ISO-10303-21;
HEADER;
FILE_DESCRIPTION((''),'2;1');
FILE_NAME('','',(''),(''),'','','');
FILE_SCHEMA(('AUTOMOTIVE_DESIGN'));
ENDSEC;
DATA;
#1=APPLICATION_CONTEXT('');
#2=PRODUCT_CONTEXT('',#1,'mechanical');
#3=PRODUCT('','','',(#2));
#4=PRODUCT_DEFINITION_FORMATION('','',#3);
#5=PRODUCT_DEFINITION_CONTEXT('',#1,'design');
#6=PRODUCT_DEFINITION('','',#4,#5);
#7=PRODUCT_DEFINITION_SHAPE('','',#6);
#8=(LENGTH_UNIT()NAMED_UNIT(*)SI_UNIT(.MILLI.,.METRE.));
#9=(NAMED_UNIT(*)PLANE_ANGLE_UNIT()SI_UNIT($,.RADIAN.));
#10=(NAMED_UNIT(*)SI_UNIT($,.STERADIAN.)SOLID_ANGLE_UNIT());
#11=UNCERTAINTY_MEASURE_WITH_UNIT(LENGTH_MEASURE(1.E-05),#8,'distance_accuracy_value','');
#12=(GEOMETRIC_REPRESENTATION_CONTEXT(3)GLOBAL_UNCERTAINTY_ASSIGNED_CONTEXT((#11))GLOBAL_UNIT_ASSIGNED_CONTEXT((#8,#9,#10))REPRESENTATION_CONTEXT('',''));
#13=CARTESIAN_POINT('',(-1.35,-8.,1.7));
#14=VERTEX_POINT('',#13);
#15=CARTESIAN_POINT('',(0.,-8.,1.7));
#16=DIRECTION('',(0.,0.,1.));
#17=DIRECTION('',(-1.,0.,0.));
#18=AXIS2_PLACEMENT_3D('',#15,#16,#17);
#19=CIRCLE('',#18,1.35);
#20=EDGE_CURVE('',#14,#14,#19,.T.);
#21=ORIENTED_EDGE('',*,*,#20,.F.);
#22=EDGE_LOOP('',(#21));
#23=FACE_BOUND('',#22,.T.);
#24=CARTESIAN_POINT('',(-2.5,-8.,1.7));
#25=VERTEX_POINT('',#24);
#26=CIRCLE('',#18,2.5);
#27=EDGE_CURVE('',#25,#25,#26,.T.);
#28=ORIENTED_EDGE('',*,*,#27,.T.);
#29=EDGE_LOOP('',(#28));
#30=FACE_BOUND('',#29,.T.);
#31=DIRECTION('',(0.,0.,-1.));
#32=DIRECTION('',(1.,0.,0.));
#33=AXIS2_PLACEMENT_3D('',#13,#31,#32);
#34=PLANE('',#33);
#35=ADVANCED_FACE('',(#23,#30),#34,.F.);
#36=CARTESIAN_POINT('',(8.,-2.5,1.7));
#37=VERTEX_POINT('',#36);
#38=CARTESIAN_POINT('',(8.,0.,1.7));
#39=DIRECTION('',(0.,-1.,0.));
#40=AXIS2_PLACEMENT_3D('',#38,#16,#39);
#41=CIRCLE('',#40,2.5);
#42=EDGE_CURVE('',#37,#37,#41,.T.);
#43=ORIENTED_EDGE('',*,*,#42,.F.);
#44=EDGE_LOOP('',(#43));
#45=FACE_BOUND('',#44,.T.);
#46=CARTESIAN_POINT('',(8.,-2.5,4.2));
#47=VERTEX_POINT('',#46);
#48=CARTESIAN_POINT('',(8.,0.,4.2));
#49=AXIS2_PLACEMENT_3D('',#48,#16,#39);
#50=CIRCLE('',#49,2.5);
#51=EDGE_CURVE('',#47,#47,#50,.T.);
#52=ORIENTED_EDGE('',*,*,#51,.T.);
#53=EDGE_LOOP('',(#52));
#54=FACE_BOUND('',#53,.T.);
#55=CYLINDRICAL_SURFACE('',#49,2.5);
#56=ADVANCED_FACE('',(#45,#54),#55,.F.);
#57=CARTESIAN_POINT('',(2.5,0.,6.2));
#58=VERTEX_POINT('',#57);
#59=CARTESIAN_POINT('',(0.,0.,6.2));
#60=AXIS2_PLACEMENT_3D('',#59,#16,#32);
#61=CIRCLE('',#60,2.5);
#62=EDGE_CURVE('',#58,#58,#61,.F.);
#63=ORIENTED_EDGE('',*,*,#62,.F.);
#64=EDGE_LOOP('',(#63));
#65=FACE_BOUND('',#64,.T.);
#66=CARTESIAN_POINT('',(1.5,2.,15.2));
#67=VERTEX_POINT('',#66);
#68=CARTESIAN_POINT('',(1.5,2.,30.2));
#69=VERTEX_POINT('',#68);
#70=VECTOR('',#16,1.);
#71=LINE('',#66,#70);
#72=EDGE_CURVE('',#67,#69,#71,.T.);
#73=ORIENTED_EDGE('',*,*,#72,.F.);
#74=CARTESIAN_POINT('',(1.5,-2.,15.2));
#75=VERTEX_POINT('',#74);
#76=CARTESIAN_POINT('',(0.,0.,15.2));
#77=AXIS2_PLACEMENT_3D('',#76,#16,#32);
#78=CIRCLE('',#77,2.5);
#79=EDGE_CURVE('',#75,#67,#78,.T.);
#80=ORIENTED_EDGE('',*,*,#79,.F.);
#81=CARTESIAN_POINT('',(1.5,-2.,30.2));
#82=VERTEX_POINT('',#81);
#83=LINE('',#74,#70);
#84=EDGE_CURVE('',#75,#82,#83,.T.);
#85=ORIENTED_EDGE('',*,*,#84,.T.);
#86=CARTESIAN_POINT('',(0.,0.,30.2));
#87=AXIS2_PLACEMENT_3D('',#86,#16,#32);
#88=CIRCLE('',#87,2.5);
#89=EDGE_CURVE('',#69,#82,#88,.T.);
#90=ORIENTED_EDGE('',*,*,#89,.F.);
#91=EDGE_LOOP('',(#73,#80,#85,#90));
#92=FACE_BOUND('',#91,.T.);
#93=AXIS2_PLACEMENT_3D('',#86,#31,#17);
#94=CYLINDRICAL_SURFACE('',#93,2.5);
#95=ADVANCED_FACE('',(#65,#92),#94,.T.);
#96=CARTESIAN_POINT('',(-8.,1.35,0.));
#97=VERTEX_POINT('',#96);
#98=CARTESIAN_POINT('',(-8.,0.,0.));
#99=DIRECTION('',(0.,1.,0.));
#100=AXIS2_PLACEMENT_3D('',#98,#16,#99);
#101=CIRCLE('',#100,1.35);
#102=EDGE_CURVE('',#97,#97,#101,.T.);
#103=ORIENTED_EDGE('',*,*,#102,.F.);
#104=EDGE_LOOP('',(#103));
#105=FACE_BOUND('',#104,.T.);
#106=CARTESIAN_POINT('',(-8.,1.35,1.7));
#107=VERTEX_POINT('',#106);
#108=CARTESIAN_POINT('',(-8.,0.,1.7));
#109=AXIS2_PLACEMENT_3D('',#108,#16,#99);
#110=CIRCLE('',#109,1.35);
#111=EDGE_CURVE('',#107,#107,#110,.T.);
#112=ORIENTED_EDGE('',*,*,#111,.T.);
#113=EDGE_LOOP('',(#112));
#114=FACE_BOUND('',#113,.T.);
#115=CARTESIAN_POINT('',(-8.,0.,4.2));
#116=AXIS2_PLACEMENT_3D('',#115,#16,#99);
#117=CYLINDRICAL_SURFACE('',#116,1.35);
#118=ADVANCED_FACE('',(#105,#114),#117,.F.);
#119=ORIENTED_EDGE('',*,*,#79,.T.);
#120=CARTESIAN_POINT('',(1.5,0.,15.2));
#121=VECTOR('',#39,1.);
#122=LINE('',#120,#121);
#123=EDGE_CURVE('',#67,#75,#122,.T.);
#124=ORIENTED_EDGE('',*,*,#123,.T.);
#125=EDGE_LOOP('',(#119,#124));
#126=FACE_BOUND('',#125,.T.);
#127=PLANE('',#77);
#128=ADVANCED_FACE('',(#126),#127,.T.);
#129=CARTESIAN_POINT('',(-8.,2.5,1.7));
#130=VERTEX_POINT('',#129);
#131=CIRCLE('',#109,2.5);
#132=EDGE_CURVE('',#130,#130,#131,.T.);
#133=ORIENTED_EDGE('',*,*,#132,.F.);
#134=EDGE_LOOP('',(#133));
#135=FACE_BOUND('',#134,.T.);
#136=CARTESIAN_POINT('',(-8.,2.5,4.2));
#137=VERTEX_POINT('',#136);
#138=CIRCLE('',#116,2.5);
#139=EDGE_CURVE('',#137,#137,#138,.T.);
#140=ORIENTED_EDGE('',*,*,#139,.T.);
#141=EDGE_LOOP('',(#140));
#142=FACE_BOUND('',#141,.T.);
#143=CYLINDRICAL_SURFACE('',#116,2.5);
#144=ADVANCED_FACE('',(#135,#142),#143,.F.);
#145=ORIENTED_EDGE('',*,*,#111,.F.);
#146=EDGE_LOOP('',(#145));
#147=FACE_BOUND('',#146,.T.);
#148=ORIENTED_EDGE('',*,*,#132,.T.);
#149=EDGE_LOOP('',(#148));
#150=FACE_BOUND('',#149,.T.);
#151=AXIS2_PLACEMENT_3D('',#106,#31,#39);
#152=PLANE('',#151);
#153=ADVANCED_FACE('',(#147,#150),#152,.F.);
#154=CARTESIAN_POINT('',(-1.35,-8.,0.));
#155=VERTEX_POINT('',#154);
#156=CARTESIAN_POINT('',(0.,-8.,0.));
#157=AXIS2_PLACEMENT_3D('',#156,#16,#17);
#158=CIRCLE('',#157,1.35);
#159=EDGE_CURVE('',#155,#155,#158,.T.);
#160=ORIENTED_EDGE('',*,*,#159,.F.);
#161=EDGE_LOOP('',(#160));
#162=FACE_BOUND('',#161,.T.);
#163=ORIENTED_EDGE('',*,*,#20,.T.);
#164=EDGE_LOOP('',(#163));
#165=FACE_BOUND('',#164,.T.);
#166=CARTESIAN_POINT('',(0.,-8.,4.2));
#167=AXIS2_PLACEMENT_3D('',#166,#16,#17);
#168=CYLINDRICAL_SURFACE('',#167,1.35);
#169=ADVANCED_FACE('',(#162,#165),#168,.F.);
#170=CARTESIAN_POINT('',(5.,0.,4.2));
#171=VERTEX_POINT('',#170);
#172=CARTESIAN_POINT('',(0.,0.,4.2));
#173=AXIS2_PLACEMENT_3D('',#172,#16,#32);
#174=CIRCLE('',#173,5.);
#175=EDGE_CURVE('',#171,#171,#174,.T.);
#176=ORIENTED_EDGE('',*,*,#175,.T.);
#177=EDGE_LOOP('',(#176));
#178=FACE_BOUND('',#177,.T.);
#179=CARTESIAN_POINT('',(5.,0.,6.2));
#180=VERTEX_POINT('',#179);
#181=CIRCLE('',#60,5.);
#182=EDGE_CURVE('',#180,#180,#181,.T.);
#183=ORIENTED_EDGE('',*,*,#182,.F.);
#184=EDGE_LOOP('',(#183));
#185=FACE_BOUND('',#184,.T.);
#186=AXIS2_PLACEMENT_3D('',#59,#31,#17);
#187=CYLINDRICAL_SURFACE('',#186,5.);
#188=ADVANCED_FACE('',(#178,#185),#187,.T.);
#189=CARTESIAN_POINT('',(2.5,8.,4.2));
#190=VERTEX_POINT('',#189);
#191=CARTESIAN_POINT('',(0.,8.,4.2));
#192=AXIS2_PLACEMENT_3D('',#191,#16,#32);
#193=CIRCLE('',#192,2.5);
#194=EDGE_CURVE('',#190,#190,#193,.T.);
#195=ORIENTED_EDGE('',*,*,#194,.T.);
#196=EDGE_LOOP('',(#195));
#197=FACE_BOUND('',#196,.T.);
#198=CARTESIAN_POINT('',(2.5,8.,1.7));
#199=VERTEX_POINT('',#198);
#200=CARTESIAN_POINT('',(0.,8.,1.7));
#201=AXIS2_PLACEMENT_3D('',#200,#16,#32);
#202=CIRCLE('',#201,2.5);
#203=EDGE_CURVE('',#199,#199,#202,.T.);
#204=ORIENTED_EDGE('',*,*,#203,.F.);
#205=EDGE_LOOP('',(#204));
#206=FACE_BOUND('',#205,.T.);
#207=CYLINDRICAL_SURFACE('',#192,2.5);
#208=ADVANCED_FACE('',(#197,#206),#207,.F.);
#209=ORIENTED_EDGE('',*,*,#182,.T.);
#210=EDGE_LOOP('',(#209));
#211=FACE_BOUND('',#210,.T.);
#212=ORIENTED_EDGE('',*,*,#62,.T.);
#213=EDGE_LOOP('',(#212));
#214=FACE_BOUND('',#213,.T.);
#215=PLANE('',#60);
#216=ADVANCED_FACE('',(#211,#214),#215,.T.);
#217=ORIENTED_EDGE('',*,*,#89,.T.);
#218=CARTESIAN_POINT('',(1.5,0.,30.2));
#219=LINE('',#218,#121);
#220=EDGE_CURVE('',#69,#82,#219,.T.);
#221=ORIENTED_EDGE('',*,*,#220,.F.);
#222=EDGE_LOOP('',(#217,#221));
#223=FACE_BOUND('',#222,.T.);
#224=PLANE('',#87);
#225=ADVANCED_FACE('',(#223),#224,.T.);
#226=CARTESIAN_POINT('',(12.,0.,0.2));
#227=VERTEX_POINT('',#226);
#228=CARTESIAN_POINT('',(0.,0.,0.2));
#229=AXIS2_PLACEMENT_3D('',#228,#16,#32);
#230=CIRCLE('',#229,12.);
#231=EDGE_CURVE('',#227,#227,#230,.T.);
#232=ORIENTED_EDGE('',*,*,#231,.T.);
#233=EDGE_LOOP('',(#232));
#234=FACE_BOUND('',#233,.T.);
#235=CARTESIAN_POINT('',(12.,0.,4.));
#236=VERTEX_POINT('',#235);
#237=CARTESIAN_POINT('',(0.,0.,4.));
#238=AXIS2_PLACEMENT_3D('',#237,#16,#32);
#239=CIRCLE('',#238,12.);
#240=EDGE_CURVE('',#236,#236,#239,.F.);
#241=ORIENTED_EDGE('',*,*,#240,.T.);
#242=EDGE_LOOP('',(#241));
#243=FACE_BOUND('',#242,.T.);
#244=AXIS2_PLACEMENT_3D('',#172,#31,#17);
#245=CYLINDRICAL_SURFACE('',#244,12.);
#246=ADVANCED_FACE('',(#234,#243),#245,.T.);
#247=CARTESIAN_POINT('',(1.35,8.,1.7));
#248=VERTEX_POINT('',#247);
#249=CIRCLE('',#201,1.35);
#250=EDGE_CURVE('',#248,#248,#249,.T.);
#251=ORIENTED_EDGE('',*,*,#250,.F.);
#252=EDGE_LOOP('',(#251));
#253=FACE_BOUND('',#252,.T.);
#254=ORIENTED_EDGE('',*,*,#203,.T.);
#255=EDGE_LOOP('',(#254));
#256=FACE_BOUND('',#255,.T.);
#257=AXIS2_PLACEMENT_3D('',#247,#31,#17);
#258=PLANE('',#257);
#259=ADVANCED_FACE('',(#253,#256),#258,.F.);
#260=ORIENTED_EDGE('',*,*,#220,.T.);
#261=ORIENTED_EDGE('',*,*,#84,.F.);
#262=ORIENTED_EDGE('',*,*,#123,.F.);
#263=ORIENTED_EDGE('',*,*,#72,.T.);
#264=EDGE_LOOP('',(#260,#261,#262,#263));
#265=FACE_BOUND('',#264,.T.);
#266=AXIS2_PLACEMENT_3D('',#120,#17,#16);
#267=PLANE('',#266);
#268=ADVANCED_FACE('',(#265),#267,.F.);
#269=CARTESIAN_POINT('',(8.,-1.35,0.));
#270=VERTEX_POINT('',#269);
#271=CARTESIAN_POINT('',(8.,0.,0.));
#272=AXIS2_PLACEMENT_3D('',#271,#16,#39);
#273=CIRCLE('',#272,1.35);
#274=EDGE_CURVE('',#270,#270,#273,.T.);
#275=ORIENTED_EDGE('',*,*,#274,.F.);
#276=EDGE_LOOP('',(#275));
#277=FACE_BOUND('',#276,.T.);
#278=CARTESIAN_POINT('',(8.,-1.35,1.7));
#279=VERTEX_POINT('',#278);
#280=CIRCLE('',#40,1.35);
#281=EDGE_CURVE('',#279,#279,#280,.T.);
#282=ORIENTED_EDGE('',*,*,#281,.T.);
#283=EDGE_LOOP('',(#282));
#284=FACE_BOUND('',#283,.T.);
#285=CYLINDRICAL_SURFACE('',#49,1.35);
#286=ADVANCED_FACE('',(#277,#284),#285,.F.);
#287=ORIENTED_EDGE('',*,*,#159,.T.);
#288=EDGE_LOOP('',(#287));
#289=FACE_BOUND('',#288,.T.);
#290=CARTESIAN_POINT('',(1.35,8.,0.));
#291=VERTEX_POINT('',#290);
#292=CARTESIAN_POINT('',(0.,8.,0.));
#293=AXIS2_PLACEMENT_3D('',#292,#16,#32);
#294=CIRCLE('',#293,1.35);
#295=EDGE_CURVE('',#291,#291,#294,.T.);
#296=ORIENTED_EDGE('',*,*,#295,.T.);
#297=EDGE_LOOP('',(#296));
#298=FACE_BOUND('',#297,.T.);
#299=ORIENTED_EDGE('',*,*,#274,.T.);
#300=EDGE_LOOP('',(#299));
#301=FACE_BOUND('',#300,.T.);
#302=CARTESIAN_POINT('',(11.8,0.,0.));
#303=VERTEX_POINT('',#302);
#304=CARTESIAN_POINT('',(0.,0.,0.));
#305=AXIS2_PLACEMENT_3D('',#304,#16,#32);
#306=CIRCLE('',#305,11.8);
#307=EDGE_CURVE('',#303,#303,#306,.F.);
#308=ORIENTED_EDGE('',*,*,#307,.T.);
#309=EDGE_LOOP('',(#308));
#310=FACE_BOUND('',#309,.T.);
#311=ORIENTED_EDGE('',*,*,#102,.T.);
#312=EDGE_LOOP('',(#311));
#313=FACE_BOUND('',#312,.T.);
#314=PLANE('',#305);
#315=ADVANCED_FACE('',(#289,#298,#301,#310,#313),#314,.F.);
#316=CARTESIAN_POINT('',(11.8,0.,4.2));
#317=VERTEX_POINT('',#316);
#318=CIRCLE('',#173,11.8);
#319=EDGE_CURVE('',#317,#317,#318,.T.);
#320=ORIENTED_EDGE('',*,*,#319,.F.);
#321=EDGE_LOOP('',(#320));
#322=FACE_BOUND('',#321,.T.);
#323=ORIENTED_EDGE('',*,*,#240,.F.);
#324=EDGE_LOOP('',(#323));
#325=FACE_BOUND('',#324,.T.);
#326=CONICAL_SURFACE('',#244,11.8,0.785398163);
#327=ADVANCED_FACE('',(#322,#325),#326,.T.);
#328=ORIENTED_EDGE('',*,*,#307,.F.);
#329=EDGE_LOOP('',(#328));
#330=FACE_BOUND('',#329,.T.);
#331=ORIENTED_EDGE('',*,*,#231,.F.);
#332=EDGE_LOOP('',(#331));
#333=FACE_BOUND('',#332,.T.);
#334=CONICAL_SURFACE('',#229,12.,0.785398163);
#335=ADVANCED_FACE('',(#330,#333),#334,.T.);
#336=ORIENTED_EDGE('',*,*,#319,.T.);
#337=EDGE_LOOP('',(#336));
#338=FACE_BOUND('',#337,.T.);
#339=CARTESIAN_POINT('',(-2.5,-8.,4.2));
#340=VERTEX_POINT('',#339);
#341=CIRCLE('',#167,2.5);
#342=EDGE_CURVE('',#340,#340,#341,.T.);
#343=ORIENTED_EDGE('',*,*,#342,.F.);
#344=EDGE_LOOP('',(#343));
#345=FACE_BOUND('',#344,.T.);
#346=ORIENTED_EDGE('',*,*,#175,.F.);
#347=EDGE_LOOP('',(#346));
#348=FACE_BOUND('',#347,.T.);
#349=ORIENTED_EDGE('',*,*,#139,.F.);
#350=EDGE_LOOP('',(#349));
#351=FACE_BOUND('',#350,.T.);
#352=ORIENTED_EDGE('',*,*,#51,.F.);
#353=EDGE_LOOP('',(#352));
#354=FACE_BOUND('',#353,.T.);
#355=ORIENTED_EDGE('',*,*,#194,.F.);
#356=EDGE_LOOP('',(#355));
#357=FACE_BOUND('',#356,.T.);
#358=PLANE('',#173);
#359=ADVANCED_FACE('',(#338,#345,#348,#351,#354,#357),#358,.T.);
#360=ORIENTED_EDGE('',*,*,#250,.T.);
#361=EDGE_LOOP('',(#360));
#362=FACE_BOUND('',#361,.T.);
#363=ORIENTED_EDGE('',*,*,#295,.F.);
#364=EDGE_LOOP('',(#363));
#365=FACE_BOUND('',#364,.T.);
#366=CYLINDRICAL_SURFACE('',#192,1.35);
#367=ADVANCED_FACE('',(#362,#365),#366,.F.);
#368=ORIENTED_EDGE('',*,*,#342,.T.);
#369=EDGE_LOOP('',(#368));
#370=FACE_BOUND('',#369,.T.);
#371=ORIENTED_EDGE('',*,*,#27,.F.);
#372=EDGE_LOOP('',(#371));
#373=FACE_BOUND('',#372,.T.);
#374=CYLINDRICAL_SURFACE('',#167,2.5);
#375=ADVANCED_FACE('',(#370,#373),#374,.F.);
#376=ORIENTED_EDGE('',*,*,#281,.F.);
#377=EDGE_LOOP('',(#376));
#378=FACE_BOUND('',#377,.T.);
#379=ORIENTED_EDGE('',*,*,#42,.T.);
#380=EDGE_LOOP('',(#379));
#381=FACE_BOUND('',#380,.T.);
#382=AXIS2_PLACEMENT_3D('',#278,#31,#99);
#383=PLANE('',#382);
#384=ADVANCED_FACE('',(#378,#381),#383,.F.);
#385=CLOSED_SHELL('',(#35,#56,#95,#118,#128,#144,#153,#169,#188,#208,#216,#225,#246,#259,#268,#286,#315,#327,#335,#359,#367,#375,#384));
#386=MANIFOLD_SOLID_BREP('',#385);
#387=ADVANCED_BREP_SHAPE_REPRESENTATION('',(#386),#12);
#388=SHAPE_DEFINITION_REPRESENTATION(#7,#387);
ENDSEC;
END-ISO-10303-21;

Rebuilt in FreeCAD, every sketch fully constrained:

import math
import FreeCAD as App
import Part
import Sketcher
from FreeCAD import Vector
Q = App.Units.Quantity


def edges_at(feature, points):
    """Names of the edges that pass closest to the given points."""
    edges = feature.Shape.Edges
    near = lambda p: min(range(len(edges)), key=lambda i: edges[i].distToShape(Part.Vertex(*p))[0])
    return sorted({f"Edge{near(p) + 1}" for p in points})

doc = App.newDocument("Part")
body = doc.addObject("PartDesign::Body", "Body")

# Sketch on XY plane
sketch1 = body.newObject("Sketcher::SketchObject", "Sketch")
sketch1.AttachmentSupport = (doc.getObject("XY_Plane"), [""])
sketch1.MapMode = "FlatFace"
sketch1.addGeometry(Part.Circle(Vector(0, 0, 0), Vector(0, 0, 1), 12), False)
sketch1.addConstraint([
    Sketcher.Constraint("Coincident", 0, 3, -1, 1),
    Sketcher.Constraint("Diameter", 0, Q("24 mm")),
])
pad1 = body.newObject("PartDesign::Pad", "Pad")
pad1.Profile = sketch1
pad1.Length = 4.2

# Sketch on XY plane
sketch2 = body.newObject("Sketcher::SketchObject", "Sketch001")
sketch2.AttachmentSupport = (doc.getObject("XY_Plane"), [""])
sketch2.MapMode = "FlatFace"
sketch2.AttachmentOffset = App.Placement(Vector(0, 0, 4.2), App.Rotation())
sketch2.addGeometry(Part.Circle(Vector(0, 0, 0), Vector(0, 0, 1), 5), False)
sketch2.addConstraint([
    Sketcher.Constraint("Coincident", 0, 3, -1, 1),
    Sketcher.Constraint("Diameter", 0, Q("10 mm")),
])
pad2 = body.newObject("PartDesign::Pad", "Pad001")
pad2.Profile = sketch2
pad2.Length = 2

# Sketch on XY plane
sketch3 = body.newObject("Sketcher::SketchObject", "Sketch002")
sketch3.AttachmentSupport = (doc.getObject("XY_Plane"), [""])
sketch3.MapMode = "FlatFace"
sketch3.AttachmentOffset = App.Placement(Vector(0, 0, 4.2), App.Rotation())
sketch3.addGeometry(Part.Circle(Vector(0, 8, 0), Vector(0, 0, 1), 1.4), False)
sketch3.addConstraint([
    Sketcher.Constraint("PointOnObject", 0, 3, -2),
    Sketcher.Constraint("Diameter", 0, Q("2.7 mm")),
    Sketcher.Constraint("DistanceY", -1, 1, 0, 3, Q("8 mm")),
])
doc.recompute()
hole = body.newObject("PartDesign::Hole", "Hole")
hole.Profile = sketch3
hole.ThreadType = "None"
hole.Diameter = 2.7
hole.DepthType = "ThroughAll"
hole.HoleCutType = "Counterbore"
hole.HoleCutDiameter = 5
hole.HoleCutDepth = 2.5
doc.recompute()

polarpattern = body.newObject("PartDesign::PolarPattern", "PolarPattern")
polarpattern.Originals = [hole]
polarpattern.Axis = (doc.getObject("Z_Axis"), [""])
polarpattern.Angle = 360
polarpattern.Occurrences = 4
body.Tip = polarpattern
doc.recompute()

chamfer = body.newObject("PartDesign::Chamfer", "Chamfer")
chamfer.Base = (polarpattern, edges_at(polarpattern, [(-12, 0, 0), (-12, 0, 4.2)]))
chamfer.Size = 0.2

# Sketch on XY plane
sketch4 = body.newObject("Sketcher::SketchObject", "Sketch003")
sketch4.AttachmentSupport = (doc.getObject("XY_Plane"), [""])
sketch4.MapMode = "FlatFace"
sketch4.AttachmentOffset = App.Placement(Vector(0, 0, 4.2), App.Rotation())
sketch4.addGeometry(Part.Circle(Vector(0, 0, 0), Vector(0, 0, 1), 2.5), False)
sketch4.addConstraint([
    Sketcher.Constraint("Coincident", 0, 3, -1, 1),
    Sketcher.Constraint("Diameter", 0, Q("5 mm")),
])
pad3 = body.newObject("PartDesign::Pad", "Pad002")
pad3.Profile = sketch4
pad3.Length = 26

# Sketch on XY plane
sketch5 = body.newObject("Sketcher::SketchObject", "Sketch004")
sketch5.AttachmentSupport = (doc.getObject("XY_Plane"), [""])
sketch5.MapMode = "FlatFace"
sketch5.AttachmentOffset = App.Placement(Vector(0, 0, 15.2), App.Rotation())
sketch5.addGeometry([
    Part.LineSegment(Vector(1.5, 2, 0), Vector(1.5, -2, 0)),
    Part.ArcOfCircle(Part.Circle(Vector(0, 0, 0), Vector(0, 0, 1), 2.5), math.radians(-53), math.radians(53)),
], False)
sketch5.addConstraint([
    Sketcher.Constraint("Coincident", 0, 1, 1, 2),
    Sketcher.Constraint("Coincident", 1, 1, 0, 2),
    Sketcher.Constraint("Vertical", 0),
    Sketcher.Constraint("Coincident", 1, 3, -1, 1),
    Sketcher.Constraint("Radius", 1, Q("2.5 mm")),
    Sketcher.Constraint("DistanceY", 0, 2, 0, 1, Q("4 mm")),
])
pocket1 = body.newObject("PartDesign::Pocket", "Pocket")
pocket1.Profile = sketch5
pocket1.Length = 15
pocket1.Reversed = True

doc.recompute()
